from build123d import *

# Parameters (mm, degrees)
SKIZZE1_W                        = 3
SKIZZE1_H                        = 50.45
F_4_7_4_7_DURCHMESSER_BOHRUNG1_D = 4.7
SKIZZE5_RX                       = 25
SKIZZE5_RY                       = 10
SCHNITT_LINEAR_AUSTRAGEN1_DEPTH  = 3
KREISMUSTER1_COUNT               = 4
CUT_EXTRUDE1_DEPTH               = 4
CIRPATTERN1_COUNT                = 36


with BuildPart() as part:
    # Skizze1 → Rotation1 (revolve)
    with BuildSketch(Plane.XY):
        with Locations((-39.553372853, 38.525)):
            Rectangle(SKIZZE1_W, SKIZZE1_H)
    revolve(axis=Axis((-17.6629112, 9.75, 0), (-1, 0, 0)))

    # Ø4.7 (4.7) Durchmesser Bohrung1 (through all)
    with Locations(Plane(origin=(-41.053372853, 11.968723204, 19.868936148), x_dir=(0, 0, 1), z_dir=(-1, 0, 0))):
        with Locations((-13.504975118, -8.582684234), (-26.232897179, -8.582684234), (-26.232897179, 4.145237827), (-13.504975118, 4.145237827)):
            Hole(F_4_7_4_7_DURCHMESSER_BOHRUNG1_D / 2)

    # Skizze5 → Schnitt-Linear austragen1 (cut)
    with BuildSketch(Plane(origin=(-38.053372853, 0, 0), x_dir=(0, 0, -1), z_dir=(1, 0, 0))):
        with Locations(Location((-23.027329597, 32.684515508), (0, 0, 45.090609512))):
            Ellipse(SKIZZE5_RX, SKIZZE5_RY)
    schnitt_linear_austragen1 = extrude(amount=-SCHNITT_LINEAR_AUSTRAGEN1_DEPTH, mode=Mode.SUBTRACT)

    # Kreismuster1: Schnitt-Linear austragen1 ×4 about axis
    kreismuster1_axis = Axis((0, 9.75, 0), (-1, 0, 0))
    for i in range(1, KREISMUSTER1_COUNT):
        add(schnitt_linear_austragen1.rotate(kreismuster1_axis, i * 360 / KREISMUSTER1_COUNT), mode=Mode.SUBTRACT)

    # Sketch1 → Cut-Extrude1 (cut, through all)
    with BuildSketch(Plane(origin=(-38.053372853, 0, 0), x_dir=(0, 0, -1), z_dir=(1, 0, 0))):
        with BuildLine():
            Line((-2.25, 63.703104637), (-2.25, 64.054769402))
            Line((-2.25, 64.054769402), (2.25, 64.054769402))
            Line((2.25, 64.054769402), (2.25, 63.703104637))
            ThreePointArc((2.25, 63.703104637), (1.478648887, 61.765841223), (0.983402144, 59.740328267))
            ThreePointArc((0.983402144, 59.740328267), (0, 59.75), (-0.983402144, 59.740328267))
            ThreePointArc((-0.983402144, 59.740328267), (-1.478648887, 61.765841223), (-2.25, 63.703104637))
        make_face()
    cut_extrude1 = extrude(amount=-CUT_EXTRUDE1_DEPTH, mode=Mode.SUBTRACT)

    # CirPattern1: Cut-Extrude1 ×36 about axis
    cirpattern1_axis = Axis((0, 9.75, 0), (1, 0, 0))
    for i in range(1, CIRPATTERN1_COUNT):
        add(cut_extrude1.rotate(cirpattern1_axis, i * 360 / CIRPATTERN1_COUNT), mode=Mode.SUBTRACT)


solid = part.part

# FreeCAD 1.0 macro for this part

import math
import FreeCAD as App
import Part
import Sketcher

V = App.Vector


def add_polygon(sketch, points):
    """Adds a closed chain of lines whose ends are joined by coincident constraints."""
    first, n = sketch.GeometryCount, len(points)
    for a, b in zip(points, points[1:] + points[:1]):
        sketch.addGeometry(Part.LineSegment(App.Vector(*a, 0), App.Vector(*b, 0)), False)
    for i in range(n):
        sketch.addConstraint(Sketcher.Constraint("Coincident", first + i, 2, first + (i + 1) % n, 1))

doc = App.newDocument("Part")
body = doc.addObject("PartDesign::Body", "Body")

# Sketch on XY plane
sketch1 = body.newObject("Sketcher::SketchObject", "Sketch")
sketch1.AttachmentSupport = (doc.getObject("XY_Plane"), [""])
sketch1.MapMode = "FlatFace"
add_polygon(sketch1, [(-41.053373, 63.75), (-41.053373, 13.3), (-38.053373, 13.3), (-38.053373, 63.75)])  # lines 0-3
sketch1.addGeometry(Part.LineSegment(V(-38.053373, 9.75, 0), V(-41.053373, 9.75, 0)), True)  # axis
sketch1.addConstraint([
    Sketcher.Constraint("Vertical", 0),
    Sketcher.Constraint("Horizontal", 1),
    Sketcher.Constraint("Vertical", 2),
    Sketcher.Constraint("Horizontal", 3),
    Sketcher.Constraint("Horizontal", 4),
    Sketcher.Constraint("Vertical", 2, 2, 4, 1),
    Sketcher.Constraint("Vertical", 3, 2, 4, 2),
    Sketcher.Constraint("DistanceX", 1, 1, 1, 2, 3.0),
    Sketcher.Constraint("DistanceY", 4, 1, 2, 2, 54.0),
    Sketcher.Constraint("DistanceY", 0, 2, 0, 1, 50.45),
    Sketcher.Constraint("DistanceY", -1, 1, 0, 2, 13.3),
    Sketcher.Constraint("DistanceX", 0, 2, -1, 1, 41.053373),
])
revolution = body.newObject("PartDesign::Revolution", "Revolution")
revolution.Profile = sketch1
revolution.ReferenceAxis = (sketch1, ["Axis0"])
revolution.Angle = 360

# Sketch on YZ plane
sketch2 = body.newObject("Sketcher::SketchObject", "Sketch001")
sketch2.AttachmentSupport = (doc.getObject("YZ_Plane"), [""])
sketch2.MapMode = "FlatFace"
sketch2.AttachmentOffset = App.Placement(V(0, 0, -41.053373), App.Rotation())
sketch2.addGeometry([
    Part.Circle(V(3.386039, 6.363961, 0), V(0, 0, 1), 2.35),
    Part.Circle(V(3.386039, -6.363961, 0), V(0, 0, 1), 2.35),
    Part.Circle(V(16.113961, -6.363961, 0), V(0, 0, 1), 2.35),
    Part.Circle(V(16.113961, 6.363961, 0), V(0, 0, 1), 2.35),
], False)
sketch2.addConstraint([
    Sketcher.Constraint("Equal", 0, 1),
    Sketcher.Constraint("Equal", 1, 2),
    Sketcher.Constraint("Equal", 2, 3),
    Sketcher.Constraint("Symmetric", 0, 3, 1, 3, -1),
    Sketcher.Constraint("Symmetric", 2, 3, 3, 3, -1),
    Sketcher.Constraint("Horizontal", 1, 3, 2, 3),
    Sketcher.Constraint("Diameter", 0, 4.7),
    Sketcher.Constraint("DistanceX", -1, 1, 0, 3, 3.386039),
    Sketcher.Constraint("DistanceY", -1, 1, 0, 3, 6.363961),
    Sketcher.Constraint("DistanceX", -1, 1, 2, 3, 16.113961),
])
doc.recompute()
hole = body.newObject("PartDesign::Hole", "Hole")
hole.Profile = sketch2
hole.ThreadType = "None"
hole.Diameter = 4.7
hole.DepthType = "ThroughAll"
hole.Reversed = True

# Sketch on YZ plane
sketch3 = body.newObject("Sketcher::SketchObject", "Sketch002")
sketch3.AttachmentSupport = (doc.getObject("YZ_Plane"), [""])
sketch3.MapMode = "FlatFace"
sketch3.AttachmentOffset = App.Placement(V(0, 0, -38.053373), App.Rotation())
sketch3.addGeometry(Part.Ellipse(V(50.390119, 5.377638, 0), V(39.744392, 30.109571, 0), V(32.684516, 23.02733, 0)), False)
sketch3.addConstraint(Sketcher.Constraint("Block", 0))
pocket1 = body.newObject("PartDesign::Pocket", "Pocket")
pocket1.Profile = sketch3
pocket1.Length = 3
doc.recompute()

datumline = body.newObject("PartDesign::Line", "DatumLine")
datumline.Placement = App.Placement(V(0, 9.75, 0), App.Rotation(V(0, 0, 1), V(-1, 0, 0)))
polarpattern = body.newObject("PartDesign::PolarPattern", "PolarPattern")
polarpattern.Originals = [pocket1]
polarpattern.Axis = (datumline, [""])
polarpattern.Angle = 360
polarpattern.Occurrences = 4
body.Tip = polarpattern

# Sketch on YZ plane
sketch4 = body.newObject("Sketcher::SketchObject", "Sketch003")
sketch4.AttachmentSupport = (doc.getObject("YZ_Plane"), [""])
sketch4.MapMode = "FlatFace"
sketch4.AttachmentOffset = App.Placement(V(0, 0, -38.053373), App.Rotation())
sketch4.addGeometry([
    Part.LineSegment(V(64.054769, 2.25, 0), V(63.703105, 2.25, 0)),  # 0
    Part.ArcOfCircle(Part.Circle(V(57.199081, 15.76657, 0), V(0, 0, 1), 15), math.radians(-80.246105), math.radians(-64.303655)),  # 1
    Part.ArcOfCircle(Part.Circle(V(9.749999, 0, 0), V(0, 0, 1), 50.000001), math.radians(-1.126968), math.radians(1.126968)),  # 2
    Part.ArcOfCircle(Part.Circle(V(57.199081, -15.76657, 0), V(0, 0, 1), 15), math.radians(64.303655), math.radians(80.246105)),  # 3
    Part.LineSegment(V(63.703105, -2.25, 0), V(64.054769, -2.25, 0)),  # 4
    Part.LineSegment(V(64.054769, -2.25, 0), V(64.054769, 2.25, 0)),  # 5
], False)
sketch4.addConstraint([
    Sketcher.Constraint("Coincident", 0, 2, 1, 2),
    Sketcher.Constraint("Coincident", 1, 1, 2, 2),
    Sketcher.Constraint("Coincident", 2, 1, 3, 2),
    Sketcher.Constraint("Coincident", 3, 1, 4, 1),
    Sketcher.Constraint("Coincident", 4, 2, 5, 1),
    Sketcher.Constraint("Coincident", 5, 2, 0, 1),
    Sketcher.Constraint("Horizontal", 0),
    Sketcher.Constraint("Horizontal", 4),
    Sketcher.Constraint("Vertical", 5),
    Sketcher.Constraint("Equal", 1, 3),
    Sketcher.Constraint("Symmetric", 1, 3, 3, 3, -1),
    Sketcher.Constraint("PointOnObject", 2, 3, -1),
    Sketcher.Constraint("Vertical", 0, 2, 3, 1),
    Sketcher.Constraint("Radius", 1, 15.0),
    Sketcher.Constraint("Radius", 2, 50.000001),
    Sketcher.Constraint("DistanceY", 5, 1, 5, 2, 4.5),
    Sketcher.Constraint("DistanceX", -1, 1, 2, 3, 9.749999),
    Sketcher.Constraint("DistanceX", 0, 2, 0, 1, 0.351665),
    Sketcher.Constraint("DistanceX", -1, 1, 1, 3, 57.199081),
    Sketcher.Constraint("DistanceY", -1, 1, 1, 3, 15.76657),
])
pocket2 = body.newObject("PartDesign::Pocket", "Pocket001")
pocket2.Profile = sketch4
pocket2.Type = "ThroughAll"
doc.recompute()

datumline2 = body.newObject("PartDesign::Line", "DatumLine001")
datumline2.Placement = App.Placement(V(0, 9.75, 0), App.Rotation(V(0, 0, 1), V(1, 0, 0)))
polarpattern2 = body.newObject("PartDesign::PolarPattern", "PolarPattern001")
polarpattern2.Originals = [pocket2]
polarpattern2.Axis = (datumline2, [""])
polarpattern2.Angle = 360
polarpattern2.Occurrences = 36
body.Tip = polarpattern2

doc.recompute()
